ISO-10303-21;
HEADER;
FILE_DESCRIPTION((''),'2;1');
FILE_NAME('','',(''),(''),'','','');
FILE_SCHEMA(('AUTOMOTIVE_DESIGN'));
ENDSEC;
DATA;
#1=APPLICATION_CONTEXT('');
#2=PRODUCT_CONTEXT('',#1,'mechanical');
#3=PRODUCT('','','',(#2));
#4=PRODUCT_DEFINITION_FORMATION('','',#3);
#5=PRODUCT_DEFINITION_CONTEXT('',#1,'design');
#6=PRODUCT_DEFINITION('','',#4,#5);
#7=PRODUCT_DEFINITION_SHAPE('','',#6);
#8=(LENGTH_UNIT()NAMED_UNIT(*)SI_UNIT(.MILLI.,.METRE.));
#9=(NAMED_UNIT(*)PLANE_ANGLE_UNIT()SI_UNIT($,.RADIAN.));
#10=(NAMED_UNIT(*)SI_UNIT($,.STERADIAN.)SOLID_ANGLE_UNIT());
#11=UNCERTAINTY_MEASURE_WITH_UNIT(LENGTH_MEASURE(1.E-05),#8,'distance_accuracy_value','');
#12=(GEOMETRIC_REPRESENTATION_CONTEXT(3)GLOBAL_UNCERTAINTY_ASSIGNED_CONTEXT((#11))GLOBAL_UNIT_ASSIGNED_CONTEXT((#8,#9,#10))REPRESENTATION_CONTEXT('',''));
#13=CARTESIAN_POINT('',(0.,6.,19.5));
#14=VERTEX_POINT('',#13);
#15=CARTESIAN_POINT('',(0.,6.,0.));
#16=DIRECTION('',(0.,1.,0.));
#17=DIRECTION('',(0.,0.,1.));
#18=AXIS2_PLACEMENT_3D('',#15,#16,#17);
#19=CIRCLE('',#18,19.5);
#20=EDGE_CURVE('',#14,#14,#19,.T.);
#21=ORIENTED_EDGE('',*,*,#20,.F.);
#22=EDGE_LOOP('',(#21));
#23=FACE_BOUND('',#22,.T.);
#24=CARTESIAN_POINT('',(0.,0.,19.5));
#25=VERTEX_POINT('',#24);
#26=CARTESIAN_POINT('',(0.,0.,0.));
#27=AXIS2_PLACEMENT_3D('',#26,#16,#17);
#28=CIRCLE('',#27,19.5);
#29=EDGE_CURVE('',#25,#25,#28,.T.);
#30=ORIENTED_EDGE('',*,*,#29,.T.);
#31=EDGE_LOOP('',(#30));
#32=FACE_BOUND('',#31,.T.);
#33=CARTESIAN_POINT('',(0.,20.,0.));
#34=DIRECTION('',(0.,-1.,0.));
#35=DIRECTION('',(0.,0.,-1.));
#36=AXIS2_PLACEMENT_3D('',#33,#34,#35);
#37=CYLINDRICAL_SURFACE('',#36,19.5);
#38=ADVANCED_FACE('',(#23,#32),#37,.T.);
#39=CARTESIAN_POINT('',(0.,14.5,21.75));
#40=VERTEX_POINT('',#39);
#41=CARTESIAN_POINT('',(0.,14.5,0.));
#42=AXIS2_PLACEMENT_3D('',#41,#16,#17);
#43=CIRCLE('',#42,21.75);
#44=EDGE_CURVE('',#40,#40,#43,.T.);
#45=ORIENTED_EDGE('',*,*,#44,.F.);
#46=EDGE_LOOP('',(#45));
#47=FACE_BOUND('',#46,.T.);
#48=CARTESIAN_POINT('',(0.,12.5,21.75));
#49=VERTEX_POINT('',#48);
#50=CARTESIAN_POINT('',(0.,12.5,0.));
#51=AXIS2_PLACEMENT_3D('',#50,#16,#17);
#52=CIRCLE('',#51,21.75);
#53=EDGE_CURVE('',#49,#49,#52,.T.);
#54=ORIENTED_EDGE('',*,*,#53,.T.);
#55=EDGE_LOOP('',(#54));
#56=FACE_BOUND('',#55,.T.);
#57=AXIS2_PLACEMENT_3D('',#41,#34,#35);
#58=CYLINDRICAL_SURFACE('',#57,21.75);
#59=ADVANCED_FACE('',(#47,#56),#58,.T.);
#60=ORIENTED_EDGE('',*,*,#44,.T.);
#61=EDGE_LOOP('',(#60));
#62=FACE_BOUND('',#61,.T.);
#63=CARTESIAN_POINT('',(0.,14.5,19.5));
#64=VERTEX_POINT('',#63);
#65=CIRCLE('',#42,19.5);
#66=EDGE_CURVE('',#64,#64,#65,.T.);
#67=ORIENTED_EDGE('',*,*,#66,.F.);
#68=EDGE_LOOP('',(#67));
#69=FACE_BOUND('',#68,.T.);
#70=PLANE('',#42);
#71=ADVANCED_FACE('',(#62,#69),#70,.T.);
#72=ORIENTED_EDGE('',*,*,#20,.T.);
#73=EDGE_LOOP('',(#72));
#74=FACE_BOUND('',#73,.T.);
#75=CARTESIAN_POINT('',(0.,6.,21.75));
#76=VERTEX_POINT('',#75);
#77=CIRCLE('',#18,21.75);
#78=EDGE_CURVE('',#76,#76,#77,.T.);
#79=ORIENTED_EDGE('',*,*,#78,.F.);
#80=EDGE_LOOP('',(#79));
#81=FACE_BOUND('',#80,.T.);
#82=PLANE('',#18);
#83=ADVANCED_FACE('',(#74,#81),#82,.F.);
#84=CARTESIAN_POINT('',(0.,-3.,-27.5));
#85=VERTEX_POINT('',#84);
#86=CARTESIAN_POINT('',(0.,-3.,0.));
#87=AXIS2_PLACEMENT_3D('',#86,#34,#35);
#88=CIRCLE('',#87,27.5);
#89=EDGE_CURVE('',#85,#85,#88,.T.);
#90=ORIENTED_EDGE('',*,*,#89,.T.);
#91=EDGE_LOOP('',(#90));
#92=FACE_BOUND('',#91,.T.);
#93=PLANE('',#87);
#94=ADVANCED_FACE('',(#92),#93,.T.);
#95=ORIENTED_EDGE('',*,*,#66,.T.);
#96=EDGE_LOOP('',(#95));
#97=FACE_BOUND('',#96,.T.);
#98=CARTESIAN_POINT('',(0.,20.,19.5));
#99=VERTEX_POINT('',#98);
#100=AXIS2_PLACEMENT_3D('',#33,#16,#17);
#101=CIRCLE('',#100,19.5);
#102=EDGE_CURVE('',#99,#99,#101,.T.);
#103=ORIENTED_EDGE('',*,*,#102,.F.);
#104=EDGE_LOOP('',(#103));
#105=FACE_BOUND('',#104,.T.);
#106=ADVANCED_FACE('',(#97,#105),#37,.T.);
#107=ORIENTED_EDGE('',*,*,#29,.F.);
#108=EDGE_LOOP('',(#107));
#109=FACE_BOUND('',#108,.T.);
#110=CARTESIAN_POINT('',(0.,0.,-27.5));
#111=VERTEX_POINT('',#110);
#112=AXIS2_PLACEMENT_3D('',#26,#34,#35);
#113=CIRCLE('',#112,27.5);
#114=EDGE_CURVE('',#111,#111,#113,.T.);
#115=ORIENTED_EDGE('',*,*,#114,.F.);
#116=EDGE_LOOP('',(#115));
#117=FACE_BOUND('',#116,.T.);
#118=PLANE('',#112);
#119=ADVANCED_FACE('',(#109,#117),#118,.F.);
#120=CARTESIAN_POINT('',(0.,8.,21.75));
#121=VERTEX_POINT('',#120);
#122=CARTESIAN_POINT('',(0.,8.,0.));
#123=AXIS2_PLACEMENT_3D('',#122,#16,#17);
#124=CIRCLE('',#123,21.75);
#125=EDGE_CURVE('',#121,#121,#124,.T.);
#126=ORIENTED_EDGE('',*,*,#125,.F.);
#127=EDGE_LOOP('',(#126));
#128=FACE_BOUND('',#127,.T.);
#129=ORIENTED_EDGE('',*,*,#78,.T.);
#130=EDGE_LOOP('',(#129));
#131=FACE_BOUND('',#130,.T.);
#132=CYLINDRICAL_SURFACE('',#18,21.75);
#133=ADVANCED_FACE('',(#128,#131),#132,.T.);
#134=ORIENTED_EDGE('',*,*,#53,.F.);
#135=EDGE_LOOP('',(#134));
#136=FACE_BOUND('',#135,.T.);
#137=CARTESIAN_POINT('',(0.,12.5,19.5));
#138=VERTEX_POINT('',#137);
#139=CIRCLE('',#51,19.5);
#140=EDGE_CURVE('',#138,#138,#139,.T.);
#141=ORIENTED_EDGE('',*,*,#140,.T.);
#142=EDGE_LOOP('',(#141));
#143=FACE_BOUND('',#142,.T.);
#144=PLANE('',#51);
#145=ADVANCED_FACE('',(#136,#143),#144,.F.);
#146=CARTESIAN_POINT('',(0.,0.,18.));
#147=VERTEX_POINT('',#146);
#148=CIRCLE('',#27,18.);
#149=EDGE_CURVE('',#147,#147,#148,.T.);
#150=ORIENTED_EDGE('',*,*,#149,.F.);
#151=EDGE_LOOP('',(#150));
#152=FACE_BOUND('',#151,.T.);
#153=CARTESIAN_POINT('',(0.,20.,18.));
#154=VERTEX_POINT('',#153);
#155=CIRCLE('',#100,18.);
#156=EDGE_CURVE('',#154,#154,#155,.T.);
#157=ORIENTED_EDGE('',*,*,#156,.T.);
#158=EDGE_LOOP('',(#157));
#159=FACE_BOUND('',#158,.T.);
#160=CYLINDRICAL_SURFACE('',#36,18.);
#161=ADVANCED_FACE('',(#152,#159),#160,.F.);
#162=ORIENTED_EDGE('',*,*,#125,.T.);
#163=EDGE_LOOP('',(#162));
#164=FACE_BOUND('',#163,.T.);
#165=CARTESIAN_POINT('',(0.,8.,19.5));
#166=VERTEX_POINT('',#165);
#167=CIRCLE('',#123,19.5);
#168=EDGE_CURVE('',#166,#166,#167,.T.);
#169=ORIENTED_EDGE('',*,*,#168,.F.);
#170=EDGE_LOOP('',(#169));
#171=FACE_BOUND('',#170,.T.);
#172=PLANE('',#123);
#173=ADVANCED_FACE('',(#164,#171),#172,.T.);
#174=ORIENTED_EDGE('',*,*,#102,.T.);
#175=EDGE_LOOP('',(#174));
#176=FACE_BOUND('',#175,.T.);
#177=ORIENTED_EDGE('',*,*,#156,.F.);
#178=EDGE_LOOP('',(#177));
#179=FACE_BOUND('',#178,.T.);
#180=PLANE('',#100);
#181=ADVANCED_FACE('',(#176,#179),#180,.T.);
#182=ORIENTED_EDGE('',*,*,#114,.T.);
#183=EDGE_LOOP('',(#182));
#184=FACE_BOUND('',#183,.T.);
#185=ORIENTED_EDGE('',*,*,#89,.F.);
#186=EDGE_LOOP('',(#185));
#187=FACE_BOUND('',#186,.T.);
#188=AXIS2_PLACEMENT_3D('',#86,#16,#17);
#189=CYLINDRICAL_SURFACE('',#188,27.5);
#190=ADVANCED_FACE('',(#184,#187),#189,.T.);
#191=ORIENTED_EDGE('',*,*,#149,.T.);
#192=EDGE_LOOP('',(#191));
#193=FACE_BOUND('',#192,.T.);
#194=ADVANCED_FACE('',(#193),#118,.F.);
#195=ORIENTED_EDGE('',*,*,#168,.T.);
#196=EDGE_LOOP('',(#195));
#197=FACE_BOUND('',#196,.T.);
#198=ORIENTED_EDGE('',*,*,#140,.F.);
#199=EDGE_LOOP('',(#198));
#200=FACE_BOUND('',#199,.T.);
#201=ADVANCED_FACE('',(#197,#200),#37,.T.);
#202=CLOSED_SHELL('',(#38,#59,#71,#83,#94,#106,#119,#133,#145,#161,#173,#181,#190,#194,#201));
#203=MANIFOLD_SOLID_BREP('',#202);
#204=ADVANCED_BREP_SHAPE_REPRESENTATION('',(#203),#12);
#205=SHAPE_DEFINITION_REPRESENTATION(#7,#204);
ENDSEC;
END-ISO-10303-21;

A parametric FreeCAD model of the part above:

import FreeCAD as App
import Part
import Sketcher

doc = App.newDocument("Part")
body = doc.addObject("PartDesign::Body", "Body")

sketch1 = body.newObject("Sketcher::SketchObject", "Sketch")
sketch1.AttachmentSupport = (doc.getObject("XZ_Plane"), [""])
sketch1.MapMode = "FlatFace"
sketch1.addGeometry([
    Part.Circle(App.Vector(0, 0, 0), App.Vector(0, 0, 1), 20),
    Part.Circle(App.Vector(0, 0, 0), App.Vector(0, 0, 1), 18),
], False)
sketch1.addConstraint([
    Sketcher.Constraint("Coincident", 0, 3, -1, 1),
    Sketcher.Constraint("Coincident", 1, 3, -1, 1),
    Sketcher.Constraint("Diameter", 0, 39.0),
    Sketcher.Constraint("Diameter", 1, 36.0),
])
pad1 = body.newObject("PartDesign::Pad", "Pad")
pad1.Profile = sketch1
pad1.Length = 20
pad1.Reversed = True

sketch2 = body.newObject("Sketcher::SketchObject", "Sketch001")
sketch2.AttachmentSupport = (doc.getObject("XZ_Plane"), [""])
sketch2.MapMode = "FlatFace"
sketch2.addGeometry(Part.Circle(App.Vector(0, 0, 0), App.Vector(0, 0, 1), 28), False)
sketch2.addConstraint([
    Sketcher.Constraint("Coincident", 0, 3, -1, 1),
    Sketcher.Constraint("Diameter", 0, 55.0),
])
pad2 = body.newObject("PartDesign::Pad", "Pad001")
pad2.Profile = sketch2
pad2.Length = 3

sketch3 = body.newObject("Sketcher::SketchObject", "Sketch002")
sketch3.AttachmentSupport = (doc.getObject("XZ_Plane"), [""])
sketch3.MapMode = "FlatFace"
sketch3.AttachmentOffset = App.Placement(App.Vector(0, 0, -8), App.Rotation())
sketch3.addGeometry(Part.Circle(App.Vector(0, 0, 0), App.Vector(0, 0, 1), 22), False)
sketch3.addConstraint([
    Sketcher.Constraint("Coincident", 0, 3, -1, 1),
    Sketcher.Constraint("Diameter", 0, 43.5),
])
pad3 = body.newObject("PartDesign::Pad", "Pad002")
pad3.Profile = sketch3
pad3.Length = 2

sketch4 = body.newObject("Sketcher::SketchObject", "Sketch003")
sketch4.AttachmentSupport = (doc.getObject("XZ_Plane"), [""])
sketch4.MapMode = "FlatFace"
sketch4.AttachmentOffset = App.Placement(App.Vector(0, 0, -12.5), App.Rotation())
sketch4.addGeometry(Part.Circle(App.Vector(0, 0, 0), App.Vector(0, 0, 1), 22), False)
sketch4.addConstraint([
    Sketcher.Constraint("Coincident", 0, 3, -1, 1),
    Sketcher.Constraint("Diameter", 0, 43.5),
])
pad4 = body.newObject("PartDesign::Pad", "Pad003")
pad4.Profile = sketch4
pad4.Length = 2
pad4.Reversed = True

sketch5 = body.newObject("Sketcher::SketchObject", "Sketch004")
sketch5.AttachmentSupport = (doc.getObject("XZ_Plane"), [""])
sketch5.MapMode = "FlatFace"
sketch5.addGeometry(Part.Circle(App.Vector(0, 0, 0), App.Vector(0, 0, 1), 18), False)
sketch5.addConstraint([
    Sketcher.Constraint("Coincident", 0, 3, -1, 1),
    Sketcher.Constraint("Diameter", 0, 36.0),
])
pocket1 = body.newObject("PartDesign::Pocket", "Pocket")
pocket1.Profile = sketch5
pocket1.Length = 35

doc.recompute()
